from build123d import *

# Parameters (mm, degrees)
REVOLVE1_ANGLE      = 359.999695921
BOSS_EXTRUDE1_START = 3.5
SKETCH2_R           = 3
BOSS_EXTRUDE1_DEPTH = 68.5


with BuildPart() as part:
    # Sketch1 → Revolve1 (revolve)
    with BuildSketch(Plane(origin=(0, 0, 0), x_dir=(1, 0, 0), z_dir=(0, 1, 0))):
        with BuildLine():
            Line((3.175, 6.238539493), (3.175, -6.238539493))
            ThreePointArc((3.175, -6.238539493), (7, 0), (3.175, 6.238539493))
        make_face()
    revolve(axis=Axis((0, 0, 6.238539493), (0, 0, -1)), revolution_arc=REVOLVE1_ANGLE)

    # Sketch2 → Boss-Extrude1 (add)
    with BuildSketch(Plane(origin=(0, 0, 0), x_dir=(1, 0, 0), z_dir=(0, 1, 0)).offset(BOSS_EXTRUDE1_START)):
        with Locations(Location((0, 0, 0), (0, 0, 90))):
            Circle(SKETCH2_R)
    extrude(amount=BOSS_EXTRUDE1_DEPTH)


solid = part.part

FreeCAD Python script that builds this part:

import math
import FreeCAD as App
import Part
import Sketcher

doc = App.newDocument("Part")
params = doc.addObject("Spreadsheet::Sheet", "Params")
for row, (alias, value) in enumerate([
    ("sketch1_radius", "7 mm"),
    ("revolution_angle", "359.999696 deg"),
    ("sketch2_diameter", "6 mm"),
    ("pad1_length", "68.5 mm"),
], start=1):
    params.set(f"A{row}", alias)
    params.set(f"B{row}", "=" + value)
    params.setAlias(f"B{row}", alias)

body = doc.addObject("PartDesign::Body", "Body")

# Sketch on XZ plane
sketch1 = body.newObject("Sketcher::SketchObject", "Sketch")
sketch1.AttachmentSupport = (doc.getObject("XZ_Plane"), [""])
sketch1.MapMode = "FlatFace"
sketch1.addGeometry([
    Part.LineSegment(App.Vector(3.175, -6.238539, 0), App.Vector(3.175, 6.238539, 0)),
    Part.ArcOfCircle(Part.Circle(App.Vector(0, 0, 0), App.Vector(0, 0, 1), 7), math.radians(-63.026945), math.radians(63.026945)),
], False)
sketch1.addConstraint([
    Sketcher.Constraint("Coincident", 0, 1, 1, 1),
    Sketcher.Constraint("Coincident", 1, 2, 0, 2),
    Sketcher.Constraint("Vertical", 0),
    Sketcher.Constraint("Coincident", 1, 3, -1, 1),
    Sketcher.Constraint("Radius", 1, 7.0),
    Sketcher.Constraint("DistanceX", -1, 1, 0, 1, 3.175),
])
sketch1.setExpression("Constraints[4]", "Params.sketch1_radius")
revolution = body.newObject("PartDesign::Revolution", "Revolution")
revolution.Profile = sketch1
revolution.ReferenceAxis = (sketch1, ["V_Axis"])
revolution.setExpression("Angle", "Params.revolution_angle")
revolution.Reversed = True

# Sketch on XZ plane
sketch2 = body.newObject("Sketcher::SketchObject", "Sketch001")
sketch2.AttachmentSupport = (doc.getObject("XZ_Plane"), [""])
sketch2.MapMode = "FlatFace"
sketch2.AttachmentOffset = App.Placement(App.Vector(0, 0, -3.5), App.Rotation())
sketch2.addGeometry(Part.Circle(App.Vector(0, 0, 0), App.Vector(0, 0, 1), 3), False)
sketch2.addConstraint([
    Sketcher.Constraint("Coincident", 0, 3, -1, 1),
    Sketcher.Constraint("Diameter", 0, 6.0),
])
sketch2.setExpression("Constraints[1]", "Params.sketch2_diameter")
pad1 = body.newObject("PartDesign::Pad", "Pad")
pad1.Profile = sketch2
pad1.setExpression("Length", "Params.pad1_length")
pad1.Reversed = True

doc.recompute()
